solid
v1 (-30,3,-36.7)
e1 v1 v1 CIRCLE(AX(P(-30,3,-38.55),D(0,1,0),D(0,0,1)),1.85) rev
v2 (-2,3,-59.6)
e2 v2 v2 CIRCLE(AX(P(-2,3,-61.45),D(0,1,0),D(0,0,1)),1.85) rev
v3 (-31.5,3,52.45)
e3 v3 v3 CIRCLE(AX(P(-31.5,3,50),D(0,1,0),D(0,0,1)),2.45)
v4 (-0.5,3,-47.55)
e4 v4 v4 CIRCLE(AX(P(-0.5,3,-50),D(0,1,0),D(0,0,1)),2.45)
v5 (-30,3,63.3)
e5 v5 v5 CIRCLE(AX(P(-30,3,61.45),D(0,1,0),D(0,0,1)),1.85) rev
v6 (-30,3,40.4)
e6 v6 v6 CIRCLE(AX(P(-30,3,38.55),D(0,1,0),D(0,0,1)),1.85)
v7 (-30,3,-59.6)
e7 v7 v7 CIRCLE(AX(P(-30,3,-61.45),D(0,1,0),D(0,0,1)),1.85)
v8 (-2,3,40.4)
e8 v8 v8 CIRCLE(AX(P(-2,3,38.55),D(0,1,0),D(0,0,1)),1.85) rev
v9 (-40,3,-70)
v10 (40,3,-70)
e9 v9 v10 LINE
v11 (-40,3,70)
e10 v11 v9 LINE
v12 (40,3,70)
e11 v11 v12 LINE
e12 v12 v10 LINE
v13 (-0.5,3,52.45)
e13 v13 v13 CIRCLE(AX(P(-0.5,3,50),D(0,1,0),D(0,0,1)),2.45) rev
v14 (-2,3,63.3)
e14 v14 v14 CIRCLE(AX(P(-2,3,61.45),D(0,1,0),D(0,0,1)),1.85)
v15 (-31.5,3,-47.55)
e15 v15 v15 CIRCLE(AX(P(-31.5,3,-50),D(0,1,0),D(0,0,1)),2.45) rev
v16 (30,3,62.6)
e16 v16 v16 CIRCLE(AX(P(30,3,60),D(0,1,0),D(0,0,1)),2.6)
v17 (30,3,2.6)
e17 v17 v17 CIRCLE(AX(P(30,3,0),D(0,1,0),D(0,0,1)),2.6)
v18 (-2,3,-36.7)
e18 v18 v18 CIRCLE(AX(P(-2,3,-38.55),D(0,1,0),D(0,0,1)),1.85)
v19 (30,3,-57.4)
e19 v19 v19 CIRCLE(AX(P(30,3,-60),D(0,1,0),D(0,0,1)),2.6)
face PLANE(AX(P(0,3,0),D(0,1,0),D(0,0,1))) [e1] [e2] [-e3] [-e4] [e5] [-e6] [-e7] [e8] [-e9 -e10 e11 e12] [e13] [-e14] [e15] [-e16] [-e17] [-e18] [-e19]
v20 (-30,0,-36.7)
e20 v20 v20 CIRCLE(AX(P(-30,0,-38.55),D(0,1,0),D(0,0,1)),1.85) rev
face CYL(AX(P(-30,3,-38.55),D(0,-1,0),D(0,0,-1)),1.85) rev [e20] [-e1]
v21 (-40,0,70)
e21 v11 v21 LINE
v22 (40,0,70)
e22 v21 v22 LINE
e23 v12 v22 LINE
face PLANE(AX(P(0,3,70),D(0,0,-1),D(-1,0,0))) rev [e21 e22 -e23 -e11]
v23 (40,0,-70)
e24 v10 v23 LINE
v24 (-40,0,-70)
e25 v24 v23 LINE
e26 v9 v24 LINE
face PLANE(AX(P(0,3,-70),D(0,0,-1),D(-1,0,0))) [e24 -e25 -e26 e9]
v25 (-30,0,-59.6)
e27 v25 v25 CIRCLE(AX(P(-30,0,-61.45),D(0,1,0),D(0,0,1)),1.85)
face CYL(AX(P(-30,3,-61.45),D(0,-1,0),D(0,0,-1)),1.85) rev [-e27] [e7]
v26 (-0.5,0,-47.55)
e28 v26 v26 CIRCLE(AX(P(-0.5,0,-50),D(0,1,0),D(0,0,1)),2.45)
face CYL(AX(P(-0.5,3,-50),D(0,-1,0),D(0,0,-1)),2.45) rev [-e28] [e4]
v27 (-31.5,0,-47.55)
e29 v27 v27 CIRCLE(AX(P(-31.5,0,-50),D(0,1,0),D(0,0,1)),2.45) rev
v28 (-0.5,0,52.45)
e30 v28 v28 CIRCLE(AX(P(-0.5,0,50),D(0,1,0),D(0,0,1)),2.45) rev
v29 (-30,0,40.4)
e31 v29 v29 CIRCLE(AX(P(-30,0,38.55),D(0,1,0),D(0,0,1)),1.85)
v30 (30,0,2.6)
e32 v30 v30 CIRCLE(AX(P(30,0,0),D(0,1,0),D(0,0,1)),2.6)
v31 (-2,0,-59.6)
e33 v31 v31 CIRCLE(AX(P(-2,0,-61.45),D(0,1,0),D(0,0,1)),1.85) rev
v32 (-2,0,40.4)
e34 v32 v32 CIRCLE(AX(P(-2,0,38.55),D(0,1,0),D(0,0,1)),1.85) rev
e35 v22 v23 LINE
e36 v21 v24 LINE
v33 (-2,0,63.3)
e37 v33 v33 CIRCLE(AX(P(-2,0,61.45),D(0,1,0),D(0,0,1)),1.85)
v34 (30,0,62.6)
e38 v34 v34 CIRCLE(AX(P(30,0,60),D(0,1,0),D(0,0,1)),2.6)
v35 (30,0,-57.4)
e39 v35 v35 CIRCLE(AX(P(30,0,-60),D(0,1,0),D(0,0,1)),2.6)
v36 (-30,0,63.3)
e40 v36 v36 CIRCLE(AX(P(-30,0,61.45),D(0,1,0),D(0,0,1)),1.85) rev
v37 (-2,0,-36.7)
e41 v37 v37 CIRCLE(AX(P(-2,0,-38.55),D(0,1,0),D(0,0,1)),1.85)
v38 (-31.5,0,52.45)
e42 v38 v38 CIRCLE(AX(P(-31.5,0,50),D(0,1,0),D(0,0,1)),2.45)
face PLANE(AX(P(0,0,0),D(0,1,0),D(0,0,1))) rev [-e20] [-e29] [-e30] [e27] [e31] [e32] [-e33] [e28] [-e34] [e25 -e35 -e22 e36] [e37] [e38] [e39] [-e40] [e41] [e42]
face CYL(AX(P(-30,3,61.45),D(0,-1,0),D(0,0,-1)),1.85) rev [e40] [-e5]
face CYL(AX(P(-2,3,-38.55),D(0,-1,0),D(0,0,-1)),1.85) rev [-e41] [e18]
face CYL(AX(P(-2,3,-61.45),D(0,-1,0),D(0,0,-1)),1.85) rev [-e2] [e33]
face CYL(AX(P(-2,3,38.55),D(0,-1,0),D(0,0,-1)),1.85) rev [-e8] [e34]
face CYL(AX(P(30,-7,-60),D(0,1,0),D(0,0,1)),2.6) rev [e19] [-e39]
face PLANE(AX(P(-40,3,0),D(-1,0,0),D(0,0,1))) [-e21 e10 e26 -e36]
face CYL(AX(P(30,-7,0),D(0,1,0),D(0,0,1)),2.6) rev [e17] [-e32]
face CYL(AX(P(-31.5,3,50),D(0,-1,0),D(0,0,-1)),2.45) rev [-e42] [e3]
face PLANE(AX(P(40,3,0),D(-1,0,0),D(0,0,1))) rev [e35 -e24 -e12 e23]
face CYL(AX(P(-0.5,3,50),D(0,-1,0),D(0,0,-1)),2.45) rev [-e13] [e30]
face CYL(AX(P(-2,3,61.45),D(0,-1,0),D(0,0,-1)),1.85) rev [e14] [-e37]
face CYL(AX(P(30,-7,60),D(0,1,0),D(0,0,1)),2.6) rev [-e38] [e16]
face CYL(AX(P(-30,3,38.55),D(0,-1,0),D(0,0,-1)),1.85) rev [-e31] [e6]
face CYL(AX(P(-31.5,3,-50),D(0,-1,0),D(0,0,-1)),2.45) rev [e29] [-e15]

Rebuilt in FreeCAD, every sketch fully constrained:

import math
import FreeCAD as App
import Part
import Sketcher
from FreeCAD import Vector


def add_polygon(sketch, points):
    """Adds a closed chain of lines whose ends are joined by coincident constraints."""
    first, n = sketch.GeometryCount, len(points)
    for a, b in zip(points, points[1:] + points[:1]):
        sketch.addGeometry(Part.LineSegment(App.Vector(*a, 0), App.Vector(*b, 0)), False)
    for i in range(n):
        sketch.addConstraint(Sketcher.Constraint("Coincident", first + i, 2, first + (i + 1) % n, 1))

doc = App.newDocument("Part")
params = doc.addObject("Spreadsheet::Sheet", "Params")
for row, (alias, value) in enumerate([
    ("sketch1_diameter", "5 mm"),
    ("sketch1_diameter2", "4.9 mm"),
    ("sketch1_diameter3", "3.7 mm"),
    ("sketch1_width", "80 mm"),
    ("sketch1_height", "140 mm"),
    ("pad1_length", "3 mm"),
    ("sketch2_diameter", "5.2 mm"),
    ("pocket1_length", "10 mm"),
], start=1):
    params.set(f"A{row}", alias)
    params.set(f"B{row}", "=" + value)
    params.setAlias(f"B{row}", alias)

body = doc.addObject("PartDesign::Body", "Body")

sketch1 = body.newObject("Sketcher::SketchObject", "Sketch")
sketch1.AttachmentSupport = (doc.getObject("XZ_Plane"), [""])
sketch1.MapMode = "FlatFace"
add_polygon(sketch1, [(40, 70), (40, -70), (-40, -70), (-40, 70)])
sketch1.addGeometry(Part.ArcOfCircle(Part.Circle(Vector(30, -60, 0), Vector(0, 0, 1), 2.5), math.radians(0), math.radians(270)), False)
sketch1.addGeometry(Part.ArcOfCircle(Part.Circle(Vector(30, -60, 0), Vector(0, 0, 1), 2.5), math.radians(-90), math.radians(0)), False)
sketch1.addGeometry(Part.Circle(Vector(30, 60, 0), Vector(0, 0, 1), 2.5), False)
sketch1.addGeometry(Part.Circle(Vector(30, 0, 0), Vector(0, 0, 1), 2.5), False)
sketch1.addGeometry(Part.Circle(Vector(-0.5, 50, 0), Vector(0, 0, 1), 2.5), False)
sketch1.addGeometry(Part.Circle(Vector(-2, 38.5, 0), Vector(0, 0, 1), 1.9), False)
sketch1.addGeometry(Part.Circle(Vector(-30, 61.5, 0), Vector(0, 0, 1), 1.9), False)
sketch1.addGeometry(Part.Circle(Vector(-2, 61.5, 0), Vector(0, 0, 1), 1.9), False)
sketch1.addGeometry(Part.Circle(Vector(-31.5, 50, 0), Vector(0, 0, 1), 2.5), False)
sketch1.addGeometry(Part.Circle(Vector(-30, 38.5, 0), Vector(0, 0, 1), 1.9), False)
sketch1.addGeometry(Part.Circle(Vector(-2, -61.5, 0), Vector(0, 0, 1), 1.9), False)
sketch1.addGeometry(Part.ArcOfCircle(Part.Circle(Vector(-30, -61.5, 0), Vector(0, 0, 1), 1.9), math.radians(0), math.radians(180)), False)
sketch1.addGeometry(Part.ArcOfCircle(Part.Circle(Vector(-30, -61.4, 0), Vector(0, 0, 1), 1.9), math.radians(-180), math.radians(-90)), False)
sketch1.addGeometry(Part.ArcOfCircle(Part.Circle(Vector(-30, -61.4, 0), Vector(0, 0, 1), 1.9), math.radians(-90), math.radians(0)), False)
sketch1.addGeometry(Part.Circle(Vector(-0.5, -50, 0), Vector(0, 0, 1), 2.5), False)
sketch1.addGeometry(Part.Circle(Vector(-30, -38.5, 0), Vector(0, 0, 1), 1.9), False)
sketch1.addGeometry(Part.Circle(Vector(-2, -38.5, 0), Vector(0, 0, 1), 1.9), False)
sketch1.addGeometry(Part.Circle(Vector(-31.5, -50, 0), Vector(0, 0, 1), 2.5), False)
sketch1.addConstraint([
    Sketcher.Constraint("Tangent", 4, 1, 5, 2),
    Sketcher.Constraint("Coincident", 5, 1, 4, 2),
    Sketcher.Constraint("Tangent", 15, 2, 16, 1),
    Sketcher.Constraint("Tangent", 16, 2, 17, 1),
    Sketcher.Constraint("Tangent", 17, 2, 15, 1),
    Sketcher.Constraint("Vertical", 0),
    Sketcher.Constraint("Horizontal", 1),
    Sketcher.Constraint("Vertical", 2),
    Sketcher.Constraint("Horizontal", 3),
    Sketcher.Constraint("Equal", 5, 6),
    Sketcher.Constraint("Equal", 6, 7),
    Sketcher.Constraint("Equal", 9, 10),
    Sketcher.Constraint("Equal", 10, 11),
    Sketcher.Constraint("Equal", 8, 12),
    Sketcher.Constraint("Equal", 11, 13),
    Sketcher.Constraint("Equal", 13, 14),
    Sketcher.Constraint("Equal", 14, 15),
    Sketcher.Constraint("Equal", 12, 18),
    Sketcher.Constraint("Equal", 17, 19),
    Sketcher.Constraint("Equal", 19, 20),
    Sketcher.Constraint("Equal", 18, 21),
    Sketcher.Constraint("Symmetric", 0, 2, 2, 2, -1, 1),
    Sketcher.Constraint("Symmetric", 4, 3, 6, 3, -1),
    Sketcher.Constraint("Symmetric", 11, 3, 14, 3, -1),
    Sketcher.Constraint("Symmetric", 10, 3, 15, 3, -1),
    Sketcher.Constraint("Symmetric", 8, 3, 18, 3, -1),
    Sketcher.Constraint("Symmetric", 13, 3, 19, 3, -1),
    Sketcher.Constraint("Symmetric", 9, 3, 20, 3, -1),
    Sketcher.Constraint("Symmetric", 12, 3, 21, 3, -1),
    Sketcher.Constraint("PointOnObject", 7, 3, -1),
    Sketcher.Constraint("Horizontal", 10, 3, 11, 3),
    Sketcher.Constraint("Horizontal", 8, 3, 12, 3),
    Sketcher.Constraint("Horizontal", 9, 3, 13, 3),
    Sketcher.Constraint("Horizontal", 5, 3, 4, 1),
    Sketcher.Constraint("Horizontal", 17, 3, 15, 2),
    Sketcher.Constraint("Horizontal", 15, 2, 17, 2),
    Sketcher.Constraint("Vertical", 6, 3, 7, 3),
    Sketcher.Constraint("Vertical", 9, 3, 11, 3),
    Sketcher.Constraint("Vertical", 10, 3, 13, 3),
    Sketcher.Constraint("Vertical", 7, 3, 5, 1),
    Sketcher.Constraint("Vertical", 19, 3, 16, 2),
    Sketcher.Constraint("Diameter", 6, 5.0),
    Sketcher.Constraint("Diameter", 8, 4.9),
    Sketcher.Constraint("Diameter", 9, 3.7),
    Sketcher.Constraint("DistanceX", 1, 2, 1, 1, 80.0),
    Sketcher.Constraint("DistanceY", 0, 2, 0, 1, 140.0),
    Sketcher.Constraint("DistanceX", -1, 1, 4, 3, 30.0),
    Sketcher.Constraint("DistanceY", 4, 3, -1, 1, 60.0),
    Sketcher.Constraint("DistanceY", -1, 1, 8, 3, 50.0),
    Sketcher.Constraint("DistanceX", 9, 3, -1, 1, 2.0),
    Sketcher.Constraint("DistanceX", 10, 3, -1, 1, 30.0),
    Sketcher.Constraint("DistanceX", 12, 3, 8, 3, 31.0),
    Sketcher.Constraint("DistanceY", 14, 3, 9, 3, 100.0),
    Sketcher.Constraint("DistanceX", 18, 3, 4, 1, 33.0),
    Sketcher.Constraint("DistanceY", 16, 2, -1, 1, 63.3),
])
sketch1.setExpression("Constraints[45]", "Params.sketch1_diameter")
sketch1.setExpression("Constraints[46]", "Params.sketch1_diameter2")
sketch1.setExpression("Constraints[47]", "Params.sketch1_diameter3")
sketch1.setExpression("Constraints[48]", "Params.sketch1_width")
sketch1.setExpression("Constraints[49]", "Params.sketch1_height")
pad1 = body.newObject("PartDesign::Pad", "Pad")
pad1.Profile = sketch1
pad1.setExpression("Length", "Params.pad1_length")
pad1.Reversed = True

sketch2 = body.newObject("Sketcher::SketchObject", "Sketch001")
sketch2.AttachmentSupport = (doc.getObject("XZ_Plane"), [""])
sketch2.MapMode = "FlatFace"
sketch2.AttachmentOffset = App.Placement(Vector(0, 0, -3), App.Rotation())
sketch2.addGeometry([
    Part.Circle(Vector(30, -60, 0), Vector(0, 0, 1), 2.6),
    Part.Circle(Vector(30, 0, 0), Vector(0, 0, 1), 2.6),
    Part.Circle(Vector(30, 60, 0), Vector(0, 0, 1), 2.6),
], False)
sketch2.addConstraint([
    Sketcher.Constraint("Equal", 0, 1),
    Sketcher.Constraint("Equal", 1, 2),
    Sketcher.Constraint("Symmetric", 0, 3, 2, 3, -1),
    Sketcher.Constraint("PointOnObject", 1, 3, -1),
    Sketcher.Constraint("Vertical", 0, 3, 1, 3),
    Sketcher.Constraint("Diameter", 0, 5.2),
    Sketcher.Constraint("DistanceX", -1, 1, 0, 3, 30.0),
    Sketcher.Constraint("DistanceY", 0, 3, -1, 1, 60.0),
])
sketch2.setExpression("Constraints[5]", "Params.sketch2_diameter")
pocket1 = body.newObject("PartDesign::Pocket", "Pocket")
pocket1.Profile = sketch2
pocket1.setExpression("Length", "Params.pocket1_length")
pocket1.Reversed = True

doc.recompute()
